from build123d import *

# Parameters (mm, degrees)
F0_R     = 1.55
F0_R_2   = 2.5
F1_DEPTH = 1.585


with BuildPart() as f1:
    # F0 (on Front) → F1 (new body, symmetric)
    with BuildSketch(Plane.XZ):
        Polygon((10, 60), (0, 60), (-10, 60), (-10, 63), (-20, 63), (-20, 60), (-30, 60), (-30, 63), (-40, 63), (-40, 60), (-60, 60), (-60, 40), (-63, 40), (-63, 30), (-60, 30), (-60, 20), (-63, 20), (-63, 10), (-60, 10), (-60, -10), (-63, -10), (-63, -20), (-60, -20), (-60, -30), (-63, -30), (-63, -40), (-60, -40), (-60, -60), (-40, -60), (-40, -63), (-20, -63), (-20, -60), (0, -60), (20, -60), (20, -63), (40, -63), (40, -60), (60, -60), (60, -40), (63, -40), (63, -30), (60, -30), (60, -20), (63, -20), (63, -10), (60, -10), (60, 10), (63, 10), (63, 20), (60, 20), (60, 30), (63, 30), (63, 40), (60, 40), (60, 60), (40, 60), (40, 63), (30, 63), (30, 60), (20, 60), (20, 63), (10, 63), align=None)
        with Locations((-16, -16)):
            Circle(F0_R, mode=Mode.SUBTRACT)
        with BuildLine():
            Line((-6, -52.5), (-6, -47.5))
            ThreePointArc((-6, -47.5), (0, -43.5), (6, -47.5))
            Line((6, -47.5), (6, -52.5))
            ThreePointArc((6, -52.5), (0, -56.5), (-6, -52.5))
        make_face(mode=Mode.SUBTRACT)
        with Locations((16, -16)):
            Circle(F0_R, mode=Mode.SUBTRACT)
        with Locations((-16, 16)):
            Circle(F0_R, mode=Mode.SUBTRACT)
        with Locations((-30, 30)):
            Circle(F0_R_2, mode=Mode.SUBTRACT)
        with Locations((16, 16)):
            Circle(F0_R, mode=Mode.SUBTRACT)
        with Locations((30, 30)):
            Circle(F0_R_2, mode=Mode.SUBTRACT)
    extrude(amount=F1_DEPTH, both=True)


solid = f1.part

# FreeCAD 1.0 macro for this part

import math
import FreeCAD as App
import Part
import Sketcher

V = App.Vector


def add_polygon(sketch, points):
    """Adds a closed chain of lines whose ends are joined by coincident constraints."""
    first, n = sketch.GeometryCount, len(points)
    for a, b in zip(points, points[1:] + points[:1]):
        sketch.addGeometry(Part.LineSegment(App.Vector(*a, 0), App.Vector(*b, 0)), False)
    for i in range(n):
        sketch.addConstraint(Sketcher.Constraint("Coincident", first + i, 2, first + (i + 1) % n, 1))

doc = App.newDocument("Part")
params = doc.addObject("Spreadsheet::Sheet", "Params")
for row, (alias, value) in enumerate([
    ("sketch1_diameter", "5 mm"),
    ("sketch1_diameter2", "3.1 mm"),
    ("sketch1_radius", "6.5 mm"),
    ("sketch1_width", "20 mm"),
    ("sketch1_width2", "3 mm"),
    ("pad1_length", "3.17 mm"),
], start=1):
    params.set(f"A{row}", alias)
    params.set(f"B{row}", "=" + value)
    params.setAlias(f"B{row}", alias)

body = doc.addObject("PartDesign::Body", "Body")

# Sketch on XZ plane
sketch1 = doc.addObject("Sketcher::SketchObject", "Sketch")
body.addObject(sketch1)
sketch1.AttachmentSupport = (doc.XZ_Plane, [""])
sketch1.MapMode = "FlatFace"
add_polygon(sketch1, [(10, 60), (-10, 60), (-10, 63), (-20, 63), (-20, 60), (-30, 60), (-30, 63), (-40, 63), (-40, 60), (-60, 60), (-60, 40), (-63, 40), (-63, 30), (-60, 30), (-60, 20), (-63, 20), (-63, 10), (-60, 10), (-60, -10), (-63, -10), (-63, -20), (-60, -20), (-60, -30), (-63, -30), (-63, -40), (-60, -40), (-60, -60), (-40, -60), (-40, -63), (-20, -63), (-20, -60), (20, -60), (20, -63), (40, -63), (40, -60), (60, -60), (60, -40), (63, -40), (63, -30), (60, -30), (60, -20), (63, -20), (63, -10), (60, -10), (60, 10), (63, 10), (63, 20), (60, 20), (60, 30), (63, 30), (63, 40), (60, 40), (60, 60), (40, 60), (40, 63), (30, 63), (30, 60), (20, 60), (20, 63), (10, 63)])  # lines 0-59
sketch1.addGeometry(Part.Circle(V(-16, -16, 0), V(0, 0, 1), 1.55), False)  # 60
sketch1.addGeometry(Part.ArcOfCircle(Part.Circle(V(0, -50, 0), V(0, 0, 1), 6.5), math.radians(-157.380135), math.radians(-22.619865)), False)  # 61
sketch1.addGeometry(Part.LineSegment(V(-6, -52.5, 0), V(-6, -47.5, 0)), False)  # 62
sketch1.addGeometry(Part.ArcOfCircle(Part.Circle(V(0, -50, 0), V(0, 0, 1), 6.5), math.radians(22.619865), math.radians(157.380135)), False)  # 63
sketch1.addGeometry(Part.LineSegment(V(6, -47.5, 0), V(6, -52.5, 0)), False)  # 64
sketch1.addGeometry(Part.Circle(V(16, -16, 0), V(0, 0, 1), 1.55), False)  # 65
sketch1.addGeometry(Part.Circle(V(-30, 30, 0), V(0, 0, 1), 2.5), False)  # 66
sketch1.addGeometry(Part.Circle(V(-16, 16, 0), V(0, 0, 1), 1.55), False)  # 67
sketch1.addGeometry(Part.Circle(V(16, 16, 0), V(0, 0, 1), 1.55), False)  # 68
sketch1.addGeometry(Part.Circle(V(30, 30, 0), V(0, 0, 1), 2.5), False)  # 69
sketch1.addConstraint(Sketcher.Constraint("Coincident", 61, 1, 62, 1))
sketch1.addConstraint(Sketcher.Constraint("Coincident", 62, 2, 63, 2))
sketch1.addConstraint(Sketcher.Constraint("Coincident", 63, 1, 64, 1))
sketch1.addConstraint(Sketcher.Constraint("Coincident", 64, 2, 61, 2))
sketch1.addConstraint(Sketcher.Constraint("Horizontal", 0))
sketch1.addConstraint(Sketcher.Constraint("Vertical", 1))
sketch1.addConstraint(Sketcher.Constraint("Horizontal", 2))
sketch1.addConstraint(Sketcher.Constraint("Vertical", 3))
sketch1.addConstraint(Sketcher.Constraint("Horizontal", 4))
sketch1.addConstraint(Sketcher.Constraint("Vertical", 5))
sketch1.addConstraint(Sketcher.Constraint("Horizontal", 6))
sketch1.addConstraint(Sketcher.Constraint("Vertical", 7))
sketch1.addConstraint(Sketcher.Constraint("Horizontal", 8))
sketch1.addConstraint(Sketcher.Constraint("Vertical", 9))
sketch1.addConstraint(Sketcher.Constraint("Horizontal", 10))
sketch1.addConstraint(Sketcher.Constraint("Vertical", 11))
sketch1.addConstraint(Sketcher.Constraint("Horizontal", 12))
sketch1.addConstraint(Sketcher.Constraint("Vertical", 13))
sketch1.addConstraint(Sketcher.Constraint("Horizontal", 14))
sketch1.addConstraint(Sketcher.Constraint("Vertical", 15))
sketch1.addConstraint(Sketcher.Constraint("Horizontal", 16))
sketch1.addConstraint(Sketcher.Constraint("Vertical", 17))
sketch1.addConstraint(Sketcher.Constraint("Horizontal", 18))
sketch1.addConstraint(Sketcher.Constraint("Vertical", 19))
sketch1.addConstraint(Sketcher.Constraint("Horizontal", 20))
sketch1.addConstraint(Sketcher.Constraint("Vertical", 21))
sketch1.addConstraint(Sketcher.Constraint("Horizontal", 22))
sketch1.addConstraint(Sketcher.Constraint("Vertical", 23))
sketch1.addConstraint(Sketcher.Constraint("Horizontal", 24))
sketch1.addConstraint(Sketcher.Constraint("Vertical", 25))
sketch1.addConstraint(Sketcher.Constraint("Horizontal", 26))
sketch1.addConstraint(Sketcher.Constraint("Vertical", 27))
sketch1.addConstraint(Sketcher.Constraint("Horizontal", 28))
sketch1.addConstraint(Sketcher.Constraint("Vertical", 29))
sketch1.addConstraint(Sketcher.Constraint("Horizontal", 30))
sketch1.addConstraint(Sketcher.Constraint("Vertical", 31))
sketch1.addConstraint(Sketcher.Constraint("Horizontal", 32))
sketch1.addConstraint(Sketcher.Constraint("Vertical", 33))
sketch1.addConstraint(Sketcher.Constraint("Horizontal", 34))
sketch1.addConstraint(Sketcher.Constraint("Vertical", 35))
sketch1.addConstraint(Sketcher.Constraint("Horizontal", 36))
sketch1.addConstraint(Sketcher.Constraint("Vertical", 37))
sketch1.addConstraint(Sketcher.Constraint("Horizontal", 38))
sketch1.addConstraint(Sketcher.Constraint("Vertical", 39))
sketch1.addConstraint(Sketcher.Constraint("Horizontal", 40))
sketch1.addConstraint(Sketcher.Constraint("Vertical", 41))
sketch1.addConstraint(Sketcher.Constraint("Horizontal", 42))
sketch1.addConstraint(Sketcher.Constraint("Vertical", 43))
sketch1.addConstraint(Sketcher.Constraint("Horizontal", 44))
sketch1.addConstraint(Sketcher.Constraint("Vertical", 45))
sketch1.addConstraint(Sketcher.Constraint("Horizontal", 46))
sketch1.addConstraint(Sketcher.Constraint("Vertical", 47))
sketch1.addConstraint(Sketcher.Constraint("Horizontal", 48))
sketch1.addConstraint(Sketcher.Constraint("Vertical", 49))
sketch1.addConstraint(Sketcher.Constraint("Horizontal", 50))
sketch1.addConstraint(Sketcher.Constraint("Vertical", 51))
sketch1.addConstraint(Sketcher.Constraint("Horizontal", 52))
sketch1.addConstraint(Sketcher.Constraint("Vertical", 53))
sketch1.addConstraint(Sketcher.Constraint("Horizontal", 54))
sketch1.addConstraint(Sketcher.Constraint("Vertical", 55))
sketch1.addConstraint(Sketcher.Constraint("Horizontal", 56))
sketch1.addConstraint(Sketcher.Constraint("Vertical", 57))
sketch1.addConstraint(Sketcher.Constraint("Horizontal", 58))
sketch1.addConstraint(Sketcher.Constraint("Vertical", 59))
sketch1.addConstraint(Sketcher.Constraint("Vertical", 62))
sketch1.addConstraint(Sketcher.Constraint("Vertical", 64))
sketch1.addConstraint(Sketcher.Constraint("Coincident", 63, 3, 61, 3))
sketch1.addConstraint(Sketcher.Constraint("Equal", 61, 63))
sketch1.addConstraint(Sketcher.Constraint("Equal", 60, 65))
sketch1.addConstraint(Sketcher.Constraint("Equal", 65, 67))
sketch1.addConstraint(Sketcher.Constraint("Equal", 67, 68))
sketch1.addConstraint(Sketcher.Constraint("Equal", 66, 69))
sketch1.addConstraint(Sketcher.Constraint("Symmetric", 65, 3, 67, 3, -1, 1))
sketch1.addConstraint(Sketcher.Constraint("Symmetric", 60, 3, 68, 3, -1, 1))
sketch1.addConstraint(Sketcher.Constraint("Symmetric", 3, 2, 30, 2, -1, 1))
sketch1.addConstraint(Sketcher.Constraint("Symmetric", 6, 2, 32, 2, -1, 1))
sketch1.addConstraint(Sketcher.Constraint("Symmetric", 8, 2, 34, 2, -1, 1))
sketch1.addConstraint(Sketcher.Constraint("Symmetric", 10, 2, 36, 2, -1, 1))
sketch1.addConstraint(Sketcher.Constraint("Symmetric", 12, 2, 38, 2, -1, 1))
sketch1.addConstraint(Sketcher.Constraint("Symmetric", 14, 2, 40, 2, -1, 1))
sketch1.addConstraint(Sketcher.Constraint("Symmetric", 16, 2, 42, 2, -1, 1))
sketch1.addConstraint(Sketcher.Constraint("Symmetric", 18, 2, 44, 2, -1, 1))
sketch1.addConstraint(Sketcher.Constraint("Symmetric", 20, 2, 46, 2, -1, 1))
sketch1.addConstraint(Sketcher.Constraint("Symmetric", 22, 2, 48, 2, -1, 1))
sketch1.addConstraint(Sketcher.Constraint("Symmetric", 24, 2, 50, 2, -1, 1))
sketch1.addConstraint(Sketcher.Constraint("Symmetric", 26, 2, 52, 2, -1, 1))
sketch1.addConstraint(Sketcher.Constraint("Symmetric", 29, 2, 56, 2, -1, 1))
sketch1.addConstraint(Sketcher.Constraint("Symmetric", 60, 3, 65, 3, -2))
sketch1.addConstraint(Sketcher.Constraint("Symmetric", 66, 3, 69, 3, -2))
sketch1.addConstraint(Sketcher.Constraint("Symmetric", 28, 2, 31, 2, -2))
sketch1.addConstraint(Sketcher.Constraint("Symmetric", 26, 2, 33, 2, -2))
sketch1.addConstraint(Sketcher.Constraint("Symmetric", 24, 2, 35, 2, -2))
sketch1.addConstraint(Sketcher.Constraint("Symmetric", 22, 2, 37, 2, -2))
sketch1.addConstraint(Sketcher.Constraint("Symmetric", 20, 2, 39, 2, -2))
sketch1.addConstraint(Sketcher.Constraint("Symmetric", 18, 2, 41, 2, -2))
sketch1.addConstraint(Sketcher.Constraint("Symmetric", 5, 2, 54, 2, -2))
sketch1.addConstraint(Sketcher.Constraint("Symmetric", 1, 2, 58, 2, -2))
sketch1.addConstraint(Sketcher.Constraint("Symmetric", 62, 2, 63, 1, -2))
sketch1.addConstraint(Sketcher.Constraint("Horizontal", 0, 2, 3, 2))
sketch1.addConstraint(Sketcher.Constraint("Horizontal", 2, 2, 5, 2))
sketch1.addConstraint(Sketcher.Constraint("Horizontal", 4, 2, 7, 2))
sketch1.addConstraint(Sketcher.Constraint("Horizontal", 69, 3, 11, 2))
sketch1.addConstraint(Sketcher.Constraint("Vertical", 66, 3, 4, 2))
sketch1.addConstraint(Sketcher.Constraint("Vertical", 9, 2, 12, 2))
sketch1.addConstraint(Sketcher.Constraint("Vertical", 11, 2, 14, 2))
sketch1.addConstraint(Sketcher.Constraint("Vertical", 13, 2, 16, 2))
sketch1.addConstraint(Sketcher.Constraint("Equal", 2, 4))
sketch1.addConstraint(Sketcher.Constraint("Equal", 4, 6))
sketch1.addConstraint(Sketcher.Constraint("Equal", 0, 8))
sketch1.addConstraint(Sketcher.Constraint("Equal", 26, 28))
sketch1.addConstraint(Sketcher.Constraint("Equal", 50, 1))
sketch1.addConstraint(Sketcher.Constraint("Equal", 52, 9))
sketch1.addConstraint(Sketcher.Constraint("Equal", 58, 11))
sketch1.addConstraint(Sketcher.Constraint("Equal", 11, 13))
sketch1.addConstraint(Sketcher.Constraint("Equal", 13, 15))
sketch1.addConstraint(Sketcher.Constraint("Equal", 9, 17))
sketch1.addConstraint(Sketcher.Constraint("Diameter", 66, 5.0))
sketch1.addConstraint(Sketcher.Constraint("Diameter", 60, 3.1))
sketch1.addConstraint(Sketcher.Constraint("Radius", 61, 6.5))
sketch1.addConstraint(Sketcher.Constraint("DistanceX", 0, 2, 0, 1, 20.0))
sketch1.addConstraint(Sketcher.Constraint("DistanceX", 10, 2, 10, 1, 3.0))
sketch1.addConstraint(Sketcher.Constraint("DistanceY", 62, 1, 62, 2, 5.0))
sketch1.addConstraint(Sketcher.Constraint("DistanceX", 60, 3, -1, 1, 16.0))
sketch1.addConstraint(Sketcher.Constraint("DistanceY", 60, 3, -1, 1, 16.0))
sketch1.addConstraint(Sketcher.Constraint("DistanceY", 61, 3, -1, 1, 50.0))
sketch1.setExpression("Constraints[176]", "Params.sketch1_diameter")
sketch1.setExpression("Constraints[177]", "Params.sketch1_diameter2")
sketch1.setExpression("Constraints[178]", "Params.sketch1_radius")
sketch1.setExpression("Constraints[179]", "Params.sketch1_width")
sketch1.setExpression("Constraints[180]", "Params.sketch1_width2")
pad1 = doc.addObject("PartDesign::Pad", "Pad")
body.addObject(pad1)
pad1.Profile = sketch1
pad1.setExpression("Length", "Params.pad1_length")
pad1.Midplane = True

doc.recompute()
